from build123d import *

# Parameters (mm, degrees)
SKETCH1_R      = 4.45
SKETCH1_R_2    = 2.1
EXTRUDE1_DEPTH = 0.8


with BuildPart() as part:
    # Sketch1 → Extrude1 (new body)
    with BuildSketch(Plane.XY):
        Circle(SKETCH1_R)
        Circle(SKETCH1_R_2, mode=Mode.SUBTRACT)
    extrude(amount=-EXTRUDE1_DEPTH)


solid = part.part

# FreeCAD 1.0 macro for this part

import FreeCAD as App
import Part
import Sketcher

doc = App.newDocument("Part")
body = doc.addObject("PartDesign::Body", "Body")

sketch1 = body.newObject("Sketcher::SketchObject", "Sketch")
sketch1.AttachmentSupport = (doc.getObject("XY_Plane"), [""])
sketch1.MapMode = "FlatFace"
sketch1.addGeometry(Part.Circle(App.Vector(0, 0, 0), App.Vector(0, 0, 1), 4.45), False)
sketch1.addGeometry(Part.Circle(App.Vector(0, 0, 0), App.Vector(0, 0, 1), 2.1), False)
sketch1.addConstraint(Sketcher.Constraint("Coincident", 0, 3, -1, 1))
sketch1.addConstraint(Sketcher.Constraint("Coincident", 1, 3, -1, 1))
sketch1.addConstraint(Sketcher.Constraint("Diameter", 0, 8.9))
sketch1.addConstraint(Sketcher.Constraint("Diameter", 1, 4.2))
pad1 = body.newObject("PartDesign::Pad", "Pad")
pad1.Profile = sketch1
pad1.Length = 0.8
pad1.Reversed = True

doc.recompute()
